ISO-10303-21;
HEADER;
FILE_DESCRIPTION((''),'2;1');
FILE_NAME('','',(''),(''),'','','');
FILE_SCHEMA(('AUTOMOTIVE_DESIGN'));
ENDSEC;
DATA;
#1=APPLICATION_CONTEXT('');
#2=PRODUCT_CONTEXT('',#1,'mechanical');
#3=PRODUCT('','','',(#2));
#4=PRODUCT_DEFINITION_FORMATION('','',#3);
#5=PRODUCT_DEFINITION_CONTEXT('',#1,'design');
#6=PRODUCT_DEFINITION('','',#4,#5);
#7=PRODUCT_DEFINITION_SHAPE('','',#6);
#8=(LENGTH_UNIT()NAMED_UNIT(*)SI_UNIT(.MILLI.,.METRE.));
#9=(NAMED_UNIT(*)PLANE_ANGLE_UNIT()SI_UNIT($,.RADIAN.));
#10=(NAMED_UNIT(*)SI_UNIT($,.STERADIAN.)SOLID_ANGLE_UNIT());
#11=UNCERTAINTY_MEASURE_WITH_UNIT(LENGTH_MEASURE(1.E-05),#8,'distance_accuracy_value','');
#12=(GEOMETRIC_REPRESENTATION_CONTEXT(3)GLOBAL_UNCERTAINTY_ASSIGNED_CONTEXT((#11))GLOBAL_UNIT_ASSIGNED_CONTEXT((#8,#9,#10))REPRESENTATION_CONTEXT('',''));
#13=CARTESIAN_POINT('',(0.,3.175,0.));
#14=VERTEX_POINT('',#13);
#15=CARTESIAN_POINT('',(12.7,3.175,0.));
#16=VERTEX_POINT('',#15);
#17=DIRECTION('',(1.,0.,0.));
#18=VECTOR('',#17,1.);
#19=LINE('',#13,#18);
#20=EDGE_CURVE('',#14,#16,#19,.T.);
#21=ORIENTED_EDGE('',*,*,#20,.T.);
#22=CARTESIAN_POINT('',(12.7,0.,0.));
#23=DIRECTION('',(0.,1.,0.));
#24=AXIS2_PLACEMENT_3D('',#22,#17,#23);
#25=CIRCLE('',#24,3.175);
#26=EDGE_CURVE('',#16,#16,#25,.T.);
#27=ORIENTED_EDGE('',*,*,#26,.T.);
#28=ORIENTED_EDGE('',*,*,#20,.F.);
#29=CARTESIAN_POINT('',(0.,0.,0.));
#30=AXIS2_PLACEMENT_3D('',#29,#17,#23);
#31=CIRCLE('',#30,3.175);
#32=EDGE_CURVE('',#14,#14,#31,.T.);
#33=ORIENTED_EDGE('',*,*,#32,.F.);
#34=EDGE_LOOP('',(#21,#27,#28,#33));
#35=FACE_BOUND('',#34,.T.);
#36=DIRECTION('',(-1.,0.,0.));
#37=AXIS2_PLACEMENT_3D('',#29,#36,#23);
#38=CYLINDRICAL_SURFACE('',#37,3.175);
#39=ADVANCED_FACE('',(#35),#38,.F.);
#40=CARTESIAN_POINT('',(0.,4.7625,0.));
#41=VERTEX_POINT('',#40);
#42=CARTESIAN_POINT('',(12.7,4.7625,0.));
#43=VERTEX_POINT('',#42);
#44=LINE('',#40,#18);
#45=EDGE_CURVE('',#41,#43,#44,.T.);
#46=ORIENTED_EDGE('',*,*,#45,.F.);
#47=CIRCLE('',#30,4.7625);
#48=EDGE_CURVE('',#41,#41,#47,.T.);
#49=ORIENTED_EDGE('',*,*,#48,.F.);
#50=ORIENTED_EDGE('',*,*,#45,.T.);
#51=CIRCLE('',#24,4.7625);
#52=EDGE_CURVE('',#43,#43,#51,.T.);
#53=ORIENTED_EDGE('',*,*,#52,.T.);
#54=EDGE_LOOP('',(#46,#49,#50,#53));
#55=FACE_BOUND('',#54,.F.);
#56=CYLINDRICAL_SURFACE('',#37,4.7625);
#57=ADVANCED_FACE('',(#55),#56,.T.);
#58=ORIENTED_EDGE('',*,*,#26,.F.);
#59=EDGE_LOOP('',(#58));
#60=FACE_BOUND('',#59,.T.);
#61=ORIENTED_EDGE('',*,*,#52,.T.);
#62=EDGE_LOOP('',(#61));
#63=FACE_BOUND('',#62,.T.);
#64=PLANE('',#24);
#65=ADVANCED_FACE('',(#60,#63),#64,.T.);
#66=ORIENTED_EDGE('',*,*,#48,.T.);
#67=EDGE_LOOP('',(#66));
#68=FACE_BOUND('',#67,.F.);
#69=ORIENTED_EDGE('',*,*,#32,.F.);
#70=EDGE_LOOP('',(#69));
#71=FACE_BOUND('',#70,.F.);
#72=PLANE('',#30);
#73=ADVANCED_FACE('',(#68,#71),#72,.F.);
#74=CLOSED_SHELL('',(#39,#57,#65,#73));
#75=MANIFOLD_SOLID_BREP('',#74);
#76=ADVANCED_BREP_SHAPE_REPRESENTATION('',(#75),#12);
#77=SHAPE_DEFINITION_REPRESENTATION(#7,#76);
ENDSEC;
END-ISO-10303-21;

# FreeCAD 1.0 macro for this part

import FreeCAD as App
import Part
import Sketcher
from FreeCAD import Vector
Q = App.Units.Quantity

doc = App.newDocument("Part")
body = doc.addObject("PartDesign::Body", "Body")

# Sketch on YZ plane
sketch1 = body.newObject("Sketcher::SketchObject", "Sketch")
sketch1.AttachmentSupport = (doc.getObject("YZ_Plane"), [""])
sketch1.MapMode = "FlatFace"
sketch1.addGeometry([
    Part.Circle(Vector(0, 0, 0), Vector(0, 0, 1), 4.8),
    Part.Circle(Vector(0, 0, 0), Vector(0, 0, 1), 3.2),
], False)
sketch1.addConstraint([
    Sketcher.Constraint("Coincident", 0, 3, -1, 1),
    Sketcher.Constraint("Coincident", 1, 3, -1, 1),
    Sketcher.Constraint("Diameter", 1, Q("0.25 in")),
    Sketcher.Constraint("Diameter", 0, Q("0.375 in")),
])
pad1 = body.newObject("PartDesign::Pad", "Pad")
pad1.Profile = sketch1
pad1.Length = Q("0.5 in")

doc.recompute()
